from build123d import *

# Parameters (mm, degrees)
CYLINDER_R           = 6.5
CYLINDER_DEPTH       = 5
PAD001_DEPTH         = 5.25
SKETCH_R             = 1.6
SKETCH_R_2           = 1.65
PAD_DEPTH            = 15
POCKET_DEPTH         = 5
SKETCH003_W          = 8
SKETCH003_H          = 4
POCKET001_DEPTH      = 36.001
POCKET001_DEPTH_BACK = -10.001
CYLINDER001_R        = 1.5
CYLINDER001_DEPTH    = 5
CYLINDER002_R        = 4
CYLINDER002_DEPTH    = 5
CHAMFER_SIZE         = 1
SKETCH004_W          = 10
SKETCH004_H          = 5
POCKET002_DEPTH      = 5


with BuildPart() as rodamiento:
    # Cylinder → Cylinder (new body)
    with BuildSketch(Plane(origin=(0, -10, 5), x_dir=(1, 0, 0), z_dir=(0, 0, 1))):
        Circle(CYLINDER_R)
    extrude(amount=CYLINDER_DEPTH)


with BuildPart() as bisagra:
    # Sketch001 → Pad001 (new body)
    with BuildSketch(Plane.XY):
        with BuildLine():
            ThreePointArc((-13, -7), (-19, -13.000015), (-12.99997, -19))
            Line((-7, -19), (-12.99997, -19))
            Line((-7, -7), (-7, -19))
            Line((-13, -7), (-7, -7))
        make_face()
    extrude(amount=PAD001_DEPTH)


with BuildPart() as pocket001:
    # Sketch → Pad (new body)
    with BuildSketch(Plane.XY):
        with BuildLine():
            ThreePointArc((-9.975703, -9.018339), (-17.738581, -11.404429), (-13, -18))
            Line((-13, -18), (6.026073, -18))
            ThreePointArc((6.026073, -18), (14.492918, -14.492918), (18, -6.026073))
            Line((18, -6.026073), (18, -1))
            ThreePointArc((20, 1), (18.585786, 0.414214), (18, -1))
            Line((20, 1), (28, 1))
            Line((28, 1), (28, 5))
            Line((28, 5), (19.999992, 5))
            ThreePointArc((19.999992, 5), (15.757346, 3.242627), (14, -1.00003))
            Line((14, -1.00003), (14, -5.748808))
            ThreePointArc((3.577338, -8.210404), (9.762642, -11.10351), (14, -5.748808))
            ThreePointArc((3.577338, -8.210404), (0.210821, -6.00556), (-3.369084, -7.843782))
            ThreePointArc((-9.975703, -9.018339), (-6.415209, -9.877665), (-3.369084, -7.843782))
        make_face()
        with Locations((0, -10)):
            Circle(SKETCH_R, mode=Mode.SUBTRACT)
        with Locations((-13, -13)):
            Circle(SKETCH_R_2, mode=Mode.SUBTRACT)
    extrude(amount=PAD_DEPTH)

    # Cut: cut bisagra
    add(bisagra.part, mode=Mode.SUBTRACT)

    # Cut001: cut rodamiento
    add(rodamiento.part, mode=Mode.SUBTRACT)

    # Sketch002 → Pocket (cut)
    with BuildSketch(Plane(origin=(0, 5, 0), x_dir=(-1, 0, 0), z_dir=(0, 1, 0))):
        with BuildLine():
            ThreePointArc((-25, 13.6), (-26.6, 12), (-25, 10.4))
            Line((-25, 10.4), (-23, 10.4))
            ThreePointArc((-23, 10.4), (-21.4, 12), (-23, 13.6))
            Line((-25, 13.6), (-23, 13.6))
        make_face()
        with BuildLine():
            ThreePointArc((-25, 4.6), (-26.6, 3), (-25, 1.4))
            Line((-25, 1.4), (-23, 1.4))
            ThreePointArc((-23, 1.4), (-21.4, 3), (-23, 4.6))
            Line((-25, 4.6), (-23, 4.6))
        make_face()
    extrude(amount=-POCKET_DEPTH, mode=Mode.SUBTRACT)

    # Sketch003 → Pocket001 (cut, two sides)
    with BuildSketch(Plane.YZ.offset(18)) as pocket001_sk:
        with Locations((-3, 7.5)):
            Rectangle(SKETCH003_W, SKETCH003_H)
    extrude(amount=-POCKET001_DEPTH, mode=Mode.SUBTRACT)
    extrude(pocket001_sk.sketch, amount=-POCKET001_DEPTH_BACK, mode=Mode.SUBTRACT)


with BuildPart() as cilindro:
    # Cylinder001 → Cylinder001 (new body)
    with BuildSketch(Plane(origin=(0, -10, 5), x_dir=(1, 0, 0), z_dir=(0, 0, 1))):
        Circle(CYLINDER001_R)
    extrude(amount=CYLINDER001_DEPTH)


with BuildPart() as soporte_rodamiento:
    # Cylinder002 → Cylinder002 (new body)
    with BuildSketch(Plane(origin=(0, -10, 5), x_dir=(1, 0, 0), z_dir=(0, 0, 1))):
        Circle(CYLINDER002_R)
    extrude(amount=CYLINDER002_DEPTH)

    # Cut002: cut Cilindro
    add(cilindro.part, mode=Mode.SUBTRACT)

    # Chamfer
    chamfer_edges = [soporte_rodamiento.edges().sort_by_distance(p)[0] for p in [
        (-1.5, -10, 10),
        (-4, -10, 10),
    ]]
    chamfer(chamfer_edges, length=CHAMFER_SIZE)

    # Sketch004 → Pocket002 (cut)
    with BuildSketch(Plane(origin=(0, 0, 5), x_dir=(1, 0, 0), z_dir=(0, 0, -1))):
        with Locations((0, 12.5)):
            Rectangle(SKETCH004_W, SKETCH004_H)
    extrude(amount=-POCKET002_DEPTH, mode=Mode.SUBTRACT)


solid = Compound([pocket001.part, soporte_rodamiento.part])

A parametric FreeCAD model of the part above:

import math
import FreeCAD as App
import Part
import Sketcher
Q = App.Units.Quantity


def edges_at(feature, points):
    """Names of the edges that pass closest to the given points."""
    edges = feature.Shape.Edges
    near = lambda p: min(range(len(edges)), key=lambda i: edges[i].distToShape(Part.Vertex(*p))[0])
    return sorted({f"Edge{near(p) + 1}" for p in points})

doc = App.newDocument("Part")
body = doc.addObject("PartDesign::Body", "Body")

sketch1 = body.newObject("Sketcher::SketchObject", "Sketch")
sketch1.AttachmentSupport = (doc.getObject("XY_Plane"), [""])
sketch1.MapMode = "FlatFace"
sketch1.AttachmentOffset = App.Placement(App.Vector(0, 0, 5), App.Rotation())
sketch1.addGeometry(Part.Circle(App.Vector(0, -10, 0), App.Vector(0, 0, 1), 6), False)
sketch1.addConstraint([
    Sketcher.Constraint("PointOnObject", 0, 3, -2),
    Sketcher.Constraint("Diameter", 0, Q("13 mm")),
    Sketcher.Constraint("DistanceY", 0, 3, -1, 1, Q("10 mm")),
])
pad1 = body.newObject("PartDesign::Pad", "Pad")
pad1.Profile = sketch1
pad1.Length = 5
body2 = doc.addObject("PartDesign::Body", "Body001")

sketch2 = body2.newObject("Sketcher::SketchObject", "Sketch001")
sketch2.AttachmentSupport = (doc.getObject("XY_Plane001"), [""])
sketch2.MapMode = "FlatFace"
sketch2.addGeometry([
    Part.ArcOfCircle(Part.Circle(App.Vector(-13, -13, 0), App.Vector(0, 0, 1), 6), math.radians(90), math.radians(270.000286)),
    Part.LineSegment(App.Vector(-12.99997, -19, 0), App.Vector(-7, -19, 0)),
    Part.LineSegment(App.Vector(-7, -19, 0), App.Vector(-7, -7, 0)),
    Part.LineSegment(App.Vector(-7, -7, 0), App.Vector(-13, -7, 0)),
], False)
sketch2.addConstraint([
    Sketcher.Constraint("Coincident", 0, 2, 1, 1),
    Sketcher.Constraint("Coincident", 1, 2, 2, 1),
    Sketcher.Constraint("Coincident", 2, 2, 3, 1),
    Sketcher.Constraint("Tangent", 3, 2, 0, 1),
    Sketcher.Constraint("Horizontal", 1),
    Sketcher.Constraint("Vertical", 2),
    Sketcher.Constraint("Horizontal", 3),
    Sketcher.Constraint("Radius", 0, Q("6 mm")),
    Sketcher.Constraint("DistanceX", 3, 2, 3, 1, Q("6 mm")),
    Sketcher.Constraint("DistanceX", 0, 3, -1, 1, Q("13 mm")),
    Sketcher.Constraint("DistanceY", 0, 3, -1, 1, Q("13 mm")),
    Sketcher.Constraint("DistanceX", 1, 1, 1, 2, Q("5.99997 mm")),
])
pad2 = body2.newObject("PartDesign::Pad", "Pad001")
pad2.Profile = sketch2
pad2.Length = 5.25
body3 = doc.addObject("PartDesign::Body", "Body002")

sketch3 = body3.newObject("Sketcher::SketchObject", "Sketch002")
sketch3.AttachmentSupport = (doc.getObject("XY_Plane002"), [""])
sketch3.MapMode = "FlatFace"
sketch3.addGeometry([
    Part.ArcOfCircle(Part.Circle(App.Vector(-13, -13, 0), App.Vector(0, 0, 1), 5), math.radians(53), math.radians(270)),
    Part.LineSegment(App.Vector(-13, -18, 0), App.Vector(6, -18, 0)),
    Part.ArcOfCircle(Part.Circle(App.Vector(6, -6, 0), App.Vector(0, 0, 1), 12), math.radians(-90), math.radians(0)),
    Part.LineSegment(App.Vector(18, -6, 0), App.Vector(18, -1, 0)),
    Part.ArcOfCircle(Part.Circle(App.Vector(20, -1, 0), App.Vector(0, 0, 1), 2), math.radians(90), math.radians(180)),
    Part.LineSegment(App.Vector(20, 1, 0), App.Vector(28, 1, 0)),
    Part.LineSegment(App.Vector(28, 1, 0), App.Vector(28, 5, 0)),
    Part.LineSegment(App.Vector(28, 5, 0), App.Vector(20, 5, 0)),
    Part.ArcOfCircle(Part.Circle(App.Vector(20, -1, 0), App.Vector(0, 0, 1), 6), math.radians(90), math.radians(180)),
    Part.LineSegment(App.Vector(14, -1, 0), App.Vector(14, -5.7, 0)),
    Part.ArcOfCircle(Part.Circle(App.Vector(8.5, -5.7, 0), App.Vector(0, 0, 1), 5.5), math.radians(-153), math.radians(0)),
    Part.ArcOfCircle(Part.Circle(App.Vector(0, -10, 0), App.Vector(0, 0, 1), 4), math.radians(27), math.radians(147)),
    Part.ArcOfCircle(Part.Circle(App.Vector(-7.2, -5.4, 0), App.Vector(0, 0, 1), 4.6), math.radians(-127), math.radians(-33)),
    Part.Circle(App.Vector(-13, -13, 0), App.Vector(0, 0, 1), 1.6),
    Part.Circle(App.Vector(0, -10, 0), App.Vector(0, 0, 1), 1.6),
], False)
sketch3.addConstraint([
    Sketcher.Constraint("Tangent", 0, 2, 1, 1),
    Sketcher.Constraint("Tangent", 1, 2, 2, 1),
    Sketcher.Constraint("Tangent", 2, 2, 3, 1),
    Sketcher.Constraint("Tangent", 3, 2, 4, 2),
    Sketcher.Constraint("Tangent", 4, 1, 5, 1),
    Sketcher.Constraint("Coincident", 5, 2, 6, 1),
    Sketcher.Constraint("Coincident", 6, 2, 7, 1),
    Sketcher.Constraint("Tangent", 7, 2, 8, 1),
    Sketcher.Constraint("Coincident", 8, 2, 9, 1),
    Sketcher.Constraint("Tangent", 9, 2, 10, 2),
    Sketcher.Constraint("Tangent", 10, 1, 11, 1),
    Sketcher.Constraint("Tangent", 11, 2, 12, 2),
    Sketcher.Constraint("Tangent", 12, 1, 0, 1),
    Sketcher.Constraint("Horizontal", 1),
    Sketcher.Constraint("Vertical", 3),
    Sketcher.Constraint("Horizontal", 5),
    Sketcher.Constraint("Vertical", 6),
    Sketcher.Constraint("Horizontal", 7),
    Sketcher.Constraint("Vertical", 9),
    Sketcher.Constraint("Coincident", 8, 3, 4, 3),
    Sketcher.Constraint("Coincident", 13, 3, 0, 3),
    Sketcher.Constraint("Coincident", 14, 3, 11, 3),
    Sketcher.Constraint("PointOnObject", 11, 3, -2),
    Sketcher.Constraint("Radius", 0, Q("5 mm")),
    Sketcher.Constraint("Radius", 4, Q("1.999999 mm")),
    Sketcher.Constraint("Radius", 8, Q("6.000001 mm")),
    Sketcher.Constraint("Radius", 11, Q("4.000001 mm")),
    Sketcher.Constraint("Diameter", 13, Q("3.3 mm")),
    Sketcher.Constraint("Diameter", 14, Q("3.2 mm")),
    Sketcher.Constraint("DistanceX", 5, 1, 5, 2, Q("8 mm")),
    Sketcher.Constraint("DistanceX", 0, 3, -1, 1, Q("13 mm")),
    Sketcher.Constraint("DistanceY", 0, 3, -1, 1, Q("13 mm")),
    Sketcher.Constraint("DistanceX", -1, 1, 4, 3, Q("19.999999 mm")),
    Sketcher.Constraint("DistanceY", 4, 3, -1, 1, Q("0.999999 mm")),
    Sketcher.Constraint("DistanceY", 11, 3, -1, 1, Q("10.000001 mm")),
    Sketcher.Constraint("Radius", 2, Q("11.973927 mm")),
    Sketcher.Constraint("Radius", 10, Q("5.502018 mm")),
    Sketcher.Constraint("Radius", 12, Q("4.565325 mm")),
    Sketcher.Constraint("DistanceY", 9, 2, 9, 1, Q("4.748778 mm")),
])
pad3 = body3.newObject("PartDesign::Pad", "Pad002")
pad3.Profile = sketch3
pad3.Length = 15
doc.recompute()

boolean = body3.newObject("PartDesign::Boolean", "Boolean")
boolean.Type = "Cut"
boolean.addObjects([body2])
doc.recompute()

boolean2 = body3.newObject("PartDesign::Boolean", "Boolean001")
boolean2.Type = "Cut"
boolean2.addObjects([body])

sketch4 = body3.newObject("Sketcher::SketchObject", "Sketch003")
sketch4.AttachmentSupport = (doc.getObject("XZ_Plane002"), [""])
sketch4.MapMode = "FlatFace"
sketch4.AttachmentOffset = App.Placement(App.Vector(0, 0, -5), App.Rotation())
sketch4.addGeometry([
    Part.ArcOfCircle(Part.Circle(App.Vector(25, 12, 0), App.Vector(0, 0, 1), 1.6), math.radians(-90), math.radians(90)),
    Part.LineSegment(App.Vector(25, 10.4, 0), App.Vector(23, 10.4, 0)),
    Part.ArcOfCircle(Part.Circle(App.Vector(23, 12, 0), App.Vector(0, 0, 1), 1.6), math.radians(90), math.radians(270)),
    Part.LineSegment(App.Vector(23, 13.6, 0), App.Vector(25, 13.6, 0)),
    Part.ArcOfCircle(Part.Circle(App.Vector(25, 3, 0), App.Vector(0, 0, 1), 1.6), math.radians(-90), math.radians(90)),
    Part.LineSegment(App.Vector(25, 1.4, 0), App.Vector(23, 1.4, 0)),
    Part.ArcOfCircle(Part.Circle(App.Vector(23, 3, 0), App.Vector(0, 0, 1), 1.6), math.radians(90), math.radians(270)),
    Part.LineSegment(App.Vector(23, 4.6, 0), App.Vector(25, 4.6, 0)),
], False)
sketch4.addConstraint([
    Sketcher.Constraint("Tangent", 0, 1, 1, 1),
    Sketcher.Constraint("Tangent", 1, 2, 2, 2),
    Sketcher.Constraint("Tangent", 2, 1, 3, 1),
    Sketcher.Constraint("Tangent", 3, 2, 0, 2),
    Sketcher.Constraint("Tangent", 4, 1, 5, 1),
    Sketcher.Constraint("Tangent", 5, 2, 6, 2),
    Sketcher.Constraint("Tangent", 6, 1, 7, 1),
    Sketcher.Constraint("Tangent", 7, 2, 4, 2),
    Sketcher.Constraint("Horizontal", 1),
    Sketcher.Constraint("Horizontal", 3),
    Sketcher.Constraint("Horizontal", 5),
    Sketcher.Constraint("Horizontal", 7),
    Sketcher.Constraint("Equal", 2, 4),
    Sketcher.Constraint("Vertical", 0, 3, 4, 3),
    Sketcher.Constraint("Vertical", 2, 3, 6, 3),
    Sketcher.Constraint("Radius", 0, Q("1.6 mm")),
    Sketcher.Constraint("DistanceX", 1, 2, 1, 1, Q("2 mm")),
    Sketcher.Constraint("DistanceX", -1, 1, 0, 3, Q("25 mm")),
    Sketcher.Constraint("DistanceY", -1, 1, 0, 3, Q("12 mm")),
    Sketcher.Constraint("DistanceY", -1, 1, 4, 3, Q("3 mm")),
])
pocket1 = body3.newObject("PartDesign::Pocket", "Pocket")
pocket1.Profile = sketch4
pocket1.Length = 5
pocket1.Reversed = True

sketch5 = body3.newObject("Sketcher::SketchObject", "Sketch004")
sketch5.AttachmentSupport = (doc.getObject("YZ_Plane002"), [""])
sketch5.MapMode = "FlatFace"
sketch5.AttachmentOffset = App.Placement(App.Vector(0, 0, 18), App.Rotation())
sketch5.addGeometry([
    Part.LineSegment(App.Vector(-7, 9.5, 0), App.Vector(-7, 5.5, 0)),
    Part.LineSegment(App.Vector(-7, 5.5, 0), App.Vector(1, 5.5, 0)),
    Part.LineSegment(App.Vector(1, 5.5, 0), App.Vector(1, 9.5, 0)),
    Part.LineSegment(App.Vector(1, 9.5, 0), App.Vector(-7, 9.5, 0)),
], False)
sketch5.addConstraint([
    Sketcher.Constraint("Coincident", 0, 2, 1, 1),
    Sketcher.Constraint("Coincident", 1, 2, 2, 1),
    Sketcher.Constraint("Coincident", 2, 2, 3, 1),
    Sketcher.Constraint("Coincident", 3, 2, 0, 1),
    Sketcher.Constraint("Vertical", 0),
    Sketcher.Constraint("Horizontal", 1),
    Sketcher.Constraint("Vertical", 2),
    Sketcher.Constraint("Horizontal", 3),
    Sketcher.Constraint("DistanceX", 1, 1, 1, 2, Q("8 mm")),
    Sketcher.Constraint("DistanceY", 0, 2, 0, 1, Q("4 mm")),
    Sketcher.Constraint("DistanceX", 0, 2, -1, 1, Q("7 mm")),
    Sketcher.Constraint("DistanceY", -1, 1, 0, 2, Q("5.5 mm")),
])
pocket2 = body3.newObject("PartDesign::Pocket", "Pocket001")
pocket2.Profile = sketch5
pocket2.Type = "ThroughAll"
pocket2.Midplane = True
body4 = doc.addObject("PartDesign::Body", "Body003")

sketch6 = body4.newObject("Sketcher::SketchObject", "Sketch005")
sketch6.AttachmentSupport = (doc.getObject("XY_Plane003"), [""])
sketch6.MapMode = "FlatFace"
sketch6.AttachmentOffset = App.Placement(App.Vector(0, 0, 5), App.Rotation())
sketch6.addGeometry(Part.Circle(App.Vector(0, -10, 0), App.Vector(0, 0, 1), 1.5), False)
sketch6.addConstraint([
    Sketcher.Constraint("PointOnObject", 0, 3, -2),
    Sketcher.Constraint("Diameter", 0, Q("3 mm")),
    Sketcher.Constraint("DistanceY", 0, 3, -1, 1, Q("10 mm")),
])
pad4 = body4.newObject("PartDesign::Pad", "Pad003")
pad4.Profile = sketch6
pad4.Length = 5
body5 = doc.addObject("PartDesign::Body", "Body004")

sketch7 = body5.newObject("Sketcher::SketchObject", "Sketch006")
sketch7.AttachmentSupport = (doc.getObject("XY_Plane004"), [""])
sketch7.MapMode = "FlatFace"
sketch7.AttachmentOffset = App.Placement(App.Vector(0, 0, 5), App.Rotation())
sketch7.addGeometry(Part.Circle(App.Vector(0, -10, 0), App.Vector(0, 0, 1), 4), False)
sketch7.addConstraint([
    Sketcher.Constraint("PointOnObject", 0, 3, -2),
    Sketcher.Constraint("Diameter", 0, Q("8 mm")),
    Sketcher.Constraint("DistanceY", 0, 3, -1, 1, Q("10 mm")),
])
pad5 = body5.newObject("PartDesign::Pad", "Pad004")
pad5.Profile = sketch7
pad5.Length = 5
doc.recompute()

boolean3 = body5.newObject("PartDesign::Boolean", "Boolean002")
boolean3.Type = "Cut"
boolean3.addObjects([body4])
doc.recompute()

chamfer = body5.newObject("PartDesign::Chamfer", "Chamfer")
chamfer.Base = (boolean3, edges_at(boolean3, [(-1.5, -10, 10), (-4, -10, 10)]))
chamfer.Size = 1

sketch8 = body5.newObject("Sketcher::SketchObject", "Sketch007")
sketch8.AttachmentSupport = (doc.getObject("XY_Plane004"), [""])
sketch8.MapMode = "FlatFace"
sketch8.AttachmentOffset = App.Placement(App.Vector(0, 0, 5), App.Rotation())
sketch8.addGeometry([
    Part.LineSegment(App.Vector(-5, -15, 0), App.Vector(-5, -10, 0)),
    Part.LineSegment(App.Vector(-5, -10, 0), App.Vector(5, -10, 0)),
    Part.LineSegment(App.Vector(5, -10, 0), App.Vector(5, -15, 0)),
    Part.LineSegment(App.Vector(5, -15, 0), App.Vector(-5, -15, 0)),
], False)
sketch8.addConstraint([
    Sketcher.Constraint("Coincident", 0, 2, 1, 1),
    Sketcher.Constraint("Coincident", 1, 2, 2, 1),
    Sketcher.Constraint("Coincident", 2, 2, 3, 1),
    Sketcher.Constraint("Coincident", 3, 2, 0, 1),
    Sketcher.Constraint("Vertical", 0),
    Sketcher.Constraint("Horizontal", 1),
    Sketcher.Constraint("Vertical", 2),
    Sketcher.Constraint("Horizontal", 3),
    Sketcher.Constraint("DistanceX", 1, 1, 1, 2, Q("10 mm")),
    Sketcher.Constraint("DistanceY", 0, 1, 0, 2, Q("5 mm")),
    Sketcher.Constraint("DistanceX", 0, 2, -1, 1, Q("5 mm")),
    Sketcher.Constraint("DistanceY", 0, 2, -1, 1, Q("10 mm")),
])
pocket3 = body5.newObject("PartDesign::Pocket", "Pocket002")
pocket3.Profile = sketch8
pocket3.Length = 5
pocket3.Reversed = True

doc.recompute()
